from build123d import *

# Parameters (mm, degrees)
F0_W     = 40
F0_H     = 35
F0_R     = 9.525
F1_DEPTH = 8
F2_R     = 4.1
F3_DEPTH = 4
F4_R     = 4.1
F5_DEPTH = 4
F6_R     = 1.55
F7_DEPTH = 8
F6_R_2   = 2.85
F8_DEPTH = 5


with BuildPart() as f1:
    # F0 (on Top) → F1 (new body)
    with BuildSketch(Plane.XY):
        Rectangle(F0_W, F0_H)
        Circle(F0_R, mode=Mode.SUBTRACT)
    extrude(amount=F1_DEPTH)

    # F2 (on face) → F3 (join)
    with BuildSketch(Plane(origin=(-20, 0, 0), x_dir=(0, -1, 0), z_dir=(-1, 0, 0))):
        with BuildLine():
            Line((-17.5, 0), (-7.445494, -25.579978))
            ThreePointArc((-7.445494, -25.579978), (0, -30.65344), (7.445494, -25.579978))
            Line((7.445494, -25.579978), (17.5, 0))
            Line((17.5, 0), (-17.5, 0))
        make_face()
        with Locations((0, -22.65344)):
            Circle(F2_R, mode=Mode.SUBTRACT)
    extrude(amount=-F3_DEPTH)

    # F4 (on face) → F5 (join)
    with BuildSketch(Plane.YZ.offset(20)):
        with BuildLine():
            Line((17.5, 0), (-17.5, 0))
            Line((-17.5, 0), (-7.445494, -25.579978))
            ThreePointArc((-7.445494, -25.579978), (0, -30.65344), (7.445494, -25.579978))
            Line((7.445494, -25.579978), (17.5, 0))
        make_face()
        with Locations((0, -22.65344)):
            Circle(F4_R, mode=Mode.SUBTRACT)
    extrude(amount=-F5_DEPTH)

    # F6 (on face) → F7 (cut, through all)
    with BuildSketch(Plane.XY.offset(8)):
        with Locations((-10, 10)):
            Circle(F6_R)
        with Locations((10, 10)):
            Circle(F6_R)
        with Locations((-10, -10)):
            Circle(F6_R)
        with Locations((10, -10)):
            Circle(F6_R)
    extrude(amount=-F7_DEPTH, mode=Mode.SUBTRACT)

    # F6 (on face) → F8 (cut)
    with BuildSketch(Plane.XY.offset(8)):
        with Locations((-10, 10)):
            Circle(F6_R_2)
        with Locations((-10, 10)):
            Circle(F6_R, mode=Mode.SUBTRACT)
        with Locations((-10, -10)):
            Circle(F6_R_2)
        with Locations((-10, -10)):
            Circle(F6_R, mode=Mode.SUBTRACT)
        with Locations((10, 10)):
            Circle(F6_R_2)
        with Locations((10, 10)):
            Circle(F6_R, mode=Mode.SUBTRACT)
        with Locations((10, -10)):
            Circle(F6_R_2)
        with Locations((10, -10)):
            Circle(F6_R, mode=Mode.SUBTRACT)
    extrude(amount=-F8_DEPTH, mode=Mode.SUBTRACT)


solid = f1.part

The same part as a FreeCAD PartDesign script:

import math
import FreeCAD as App
import Part
import Sketcher
Q = App.Units.Quantity

doc = App.newDocument("Part")
body = doc.addObject("PartDesign::Body", "Body")

sketch1 = doc.addObject("Sketcher::SketchObject", "Sketch")
body.addObject(sketch1)
sketch1.AttachmentSupport = (doc.XY_Plane, [""])
sketch1.MapMode = "FlatFace"
sketch1.addGeometry(Part.LineSegment(App.Vector(-20, 17.5, 0), App.Vector(-20, -17.5, 0)), False)
sketch1.addGeometry(Part.LineSegment(App.Vector(-20, -17.5, 0), App.Vector(20, -17.5, 0)), False)
sketch1.addGeometry(Part.LineSegment(App.Vector(20, -17.5, 0), App.Vector(20, 17.5, 0)), False)
sketch1.addGeometry(Part.LineSegment(App.Vector(20, 17.5, 0), App.Vector(-20, 17.5, 0)), False)
sketch1.addGeometry(Part.Circle(App.Vector(0, 0, 0), App.Vector(0, 0, 1), 9.525), False)
sketch1.addConstraint(Sketcher.Constraint("Coincident", 0, 2, 1, 1))
sketch1.addConstraint(Sketcher.Constraint("Coincident", 1, 2, 2, 1))
sketch1.addConstraint(Sketcher.Constraint("Coincident", 2, 2, 3, 1))
sketch1.addConstraint(Sketcher.Constraint("Coincident", 3, 2, 0, 1))
sketch1.addConstraint(Sketcher.Constraint("Vertical", 0))
sketch1.addConstraint(Sketcher.Constraint("Horizontal", 1))
sketch1.addConstraint(Sketcher.Constraint("Vertical", 2))
sketch1.addConstraint(Sketcher.Constraint("Horizontal", 3))
sketch1.addConstraint(Sketcher.Constraint("Coincident", 4, 3, -1, 1))
sketch1.addConstraint(Sketcher.Constraint("Symmetric", 0, 2, 2, 2, -1, 1))
sketch1.addConstraint(Sketcher.Constraint("Diameter", 4, Q("19.05 mm")))
sketch1.addConstraint(Sketcher.Constraint("DistanceX", 1, 1, 1, 2, Q("40 mm")))
sketch1.addConstraint(Sketcher.Constraint("DistanceY", 0, 2, 0, 1, Q("35 mm")))
pad1 = doc.addObject("PartDesign::Pad", "Pad")
body.addObject(pad1)
pad1.Profile = sketch1
pad1.Length = 8

sketch2 = doc.addObject("Sketcher::SketchObject", "Sketch001")
body.addObject(sketch2)
sketch2.AttachmentSupport = (doc.YZ_Plane, [""])
sketch2.MapMode = "FlatFace"
sketch2.AttachmentOffset = App.Placement(App.Vector(0, 0, -20), App.Rotation())
sketch2.addGeometry(Part.LineSegment(App.Vector(17.5, 0, 0), App.Vector(7.445494, -25.579978, 0)), False)
sketch2.addGeometry(Part.ArcOfCircle(Part.Circle(App.Vector(0, -22.653439, 0), App.Vector(0, 0, 1), 8.000001), math.radians(-158.542111), math.radians(-21.457889)), False)
sketch2.addGeometry(Part.LineSegment(App.Vector(-7.445494, -25.579978, 0), App.Vector(-17.5, 0, 0)), False)
sketch2.addGeometry(Part.LineSegment(App.Vector(-17.5, 0, 0), App.Vector(17.5, 0, 0)), False)
sketch2.addGeometry(Part.Circle(App.Vector(0, -22.65344, 0), App.Vector(0, 0, 1), 4.1), False)
sketch2.addConstraint(Sketcher.Constraint("Tangent", 0, 2, 1, 2))
sketch2.addConstraint(Sketcher.Constraint("Tangent", 1, 1, 2, 1))
sketch2.addConstraint(Sketcher.Constraint("Coincident", 2, 2, 3, 1))
sketch2.addConstraint(Sketcher.Constraint("Coincident", 3, 2, 0, 1))
sketch2.addConstraint(Sketcher.Constraint("Horizontal", 3))
sketch2.addConstraint(Sketcher.Constraint("Coincident", 4, 3, 1, 3))
sketch2.addConstraint(Sketcher.Constraint("Symmetric", 2, 2, 3, 2, -1, 1))
sketch2.addConstraint(Sketcher.Constraint("PointOnObject", 1, 3, -2))
sketch2.addConstraint(Sketcher.Constraint("Radius", 1, Q("8.000001 mm")))
sketch2.addConstraint(Sketcher.Constraint("Diameter", 4, Q("8.2 mm")))
sketch2.addConstraint(Sketcher.Constraint("DistanceX", 3, 1, 3, 2, Q("35 mm")))
sketch2.addConstraint(Sketcher.Constraint("DistanceY", 1, 3, -1, 1, Q("22.653439 mm")))
pad2 = doc.addObject("PartDesign::Pad", "Pad001")
body.addObject(pad2)
pad2.Profile = sketch2
pad2.Length = 4

sketch3 = doc.addObject("Sketcher::SketchObject", "Sketch002")
body.addObject(sketch3)
sketch3.AttachmentSupport = (doc.YZ_Plane, [""])
sketch3.MapMode = "FlatFace"
sketch3.AttachmentOffset = App.Placement(App.Vector(0, 0, 20), App.Rotation())
sketch3.addGeometry(Part.LineSegment(App.Vector(17.5, 0, 0), App.Vector(-17.5, 0, 0)), False)
sketch3.addGeometry(Part.LineSegment(App.Vector(-17.5, 0, 0), App.Vector(-7.445494, -25.579978, 0)), False)
sketch3.addGeometry(Part.ArcOfCircle(Part.Circle(App.Vector(0, -22.653439, 0), App.Vector(0, 0, 1), 8.000001), math.radians(-158.542111), math.radians(-21.457889)), False)
sketch3.addGeometry(Part.LineSegment(App.Vector(7.445494, -25.579978, 0), App.Vector(17.5, 0, 0)), False)
sketch3.addGeometry(Part.Circle(App.Vector(0, -22.65344, 0), App.Vector(0, 0, 1), 4.1), False)
sketch3.addConstraint(Sketcher.Constraint("Coincident", 0, 2, 1, 1))
sketch3.addConstraint(Sketcher.Constraint("Tangent", 1, 2, 2, 1))
sketch3.addConstraint(Sketcher.Constraint("Tangent", 2, 2, 3, 1))
sketch3.addConstraint(Sketcher.Constraint("Coincident", 3, 2, 0, 1))
sketch3.addConstraint(Sketcher.Constraint("Horizontal", 0))
sketch3.addConstraint(Sketcher.Constraint("Coincident", 4, 3, 2, 3))
sketch3.addConstraint(Sketcher.Constraint("Symmetric", 0, 2, 3, 2, -1, 1))
sketch3.addConstraint(Sketcher.Constraint("PointOnObject", 2, 3, -2))
sketch3.addConstraint(Sketcher.Constraint("Radius", 2, Q("8.000001 mm")))
sketch3.addConstraint(Sketcher.Constraint("Diameter", 4, Q("8.2 mm")))
sketch3.addConstraint(Sketcher.Constraint("DistanceX", 0, 2, 0, 1, Q("35 mm")))
sketch3.addConstraint(Sketcher.Constraint("DistanceY", 2, 3, -1, 1, Q("22.653439 mm")))
pad3 = doc.addObject("PartDesign::Pad", "Pad002")
body.addObject(pad3)
pad3.Profile = sketch3
pad3.Length = 4
pad3.Reversed = True

sketch4 = doc.addObject("Sketcher::SketchObject", "Sketch003")
body.addObject(sketch4)
sketch4.AttachmentSupport = (doc.XY_Plane, [""])
sketch4.MapMode = "FlatFace"
sketch4.AttachmentOffset = App.Placement(App.Vector(0, 0, 8), App.Rotation())
sketch4.addGeometry(Part.Circle(App.Vector(-10, 10, 0), App.Vector(0, 0, 1), 1.55), False)
sketch4.addGeometry(Part.Circle(App.Vector(10, 10, 0), App.Vector(0, 0, 1), 1.55), False)
sketch4.addGeometry(Part.Circle(App.Vector(-10, -10, 0), App.Vector(0, 0, 1), 1.55), False)
sketch4.addGeometry(Part.Circle(App.Vector(10, -10, 0), App.Vector(0, 0, 1), 1.55), False)
sketch4.addConstraint(Sketcher.Constraint("Equal", 0, 1))
sketch4.addConstraint(Sketcher.Constraint("Equal", 1, 2))
sketch4.addConstraint(Sketcher.Constraint("Equal", 2, 3))
sketch4.addConstraint(Sketcher.Constraint("Symmetric", 1, 3, 2, 3, -1, 1))
sketch4.addConstraint(Sketcher.Constraint("Symmetric", 0, 3, 3, 3, -1, 1))
sketch4.addConstraint(Sketcher.Constraint("Symmetric", 0, 3, 1, 3, -2))
sketch4.addConstraint(Sketcher.Constraint("Diameter", 0, Q("3.1 mm")))
sketch4.addConstraint(Sketcher.Constraint("DistanceX", 0, 3, -1, 1, Q("10 mm")))
sketch4.addConstraint(Sketcher.Constraint("DistanceY", -1, 1, 0, 3, Q("10 mm")))
pocket1 = doc.addObject("PartDesign::Pocket", "Pocket")
body.addObject(pocket1)
pocket1.Profile = sketch4
pocket1.Type = "ThroughAll"

sketch5 = doc.addObject("Sketcher::SketchObject", "Sketch004")
body.addObject(sketch5)
sketch5.AttachmentSupport = (doc.XY_Plane, [""])
sketch5.MapMode = "FlatFace"
sketch5.AttachmentOffset = App.Placement(App.Vector(0, 0, 8), App.Rotation())
sketch5.addGeometry(Part.Circle(App.Vector(-10, 10, 0), App.Vector(0, 0, 1), 2.85), False)
sketch5.addGeometry(Part.Circle(App.Vector(-10, 10, 0), App.Vector(0, 0, 1), 1.55), False)
sketch5.addGeometry(Part.Circle(App.Vector(-10, -10, 0), App.Vector(0, 0, 1), 2.85), False)
sketch5.addGeometry(Part.Circle(App.Vector(-10, -10, 0), App.Vector(0, 0, 1), 1.55), False)
sketch5.addGeometry(Part.Circle(App.Vector(10, 10, 0), App.Vector(0, 0, 1), 2.85), False)
sketch5.addGeometry(Part.Circle(App.Vector(10, 10, 0), App.Vector(0, 0, 1), 1.55), False)
sketch5.addGeometry(Part.Circle(App.Vector(10, -10, 0), App.Vector(0, 0, 1), 2.85), False)
sketch5.addGeometry(Part.Circle(App.Vector(10, -10, 0), App.Vector(0, 0, 1), 1.55), False)
sketch5.addConstraint(Sketcher.Constraint("Coincident", 1, 3, 0, 3))
sketch5.addConstraint(Sketcher.Constraint("Coincident", 3, 3, 2, 3))
sketch5.addConstraint(Sketcher.Constraint("Coincident", 5, 3, 4, 3))
sketch5.addConstraint(Sketcher.Constraint("Coincident", 7, 3, 6, 3))
sketch5.addConstraint(Sketcher.Constraint("Equal", 0, 2))
sketch5.addConstraint(Sketcher.Constraint("Equal", 1, 3))
sketch5.addConstraint(Sketcher.Constraint("Equal", 2, 4))
sketch5.addConstraint(Sketcher.Constraint("Equal", 3, 5))
sketch5.addConstraint(Sketcher.Constraint("Equal", 4, 6))
sketch5.addConstraint(Sketcher.Constraint("Equal", 5, 7))
sketch5.addConstraint(Sketcher.Constraint("Symmetric", 2, 3, 4, 3, -1, 1))
sketch5.addConstraint(Sketcher.Constraint("Symmetric", 0, 3, 6, 3, -1, 1))
sketch5.addConstraint(Sketcher.Constraint("Symmetric", 0, 3, 4, 3, -2))
sketch5.addConstraint(Sketcher.Constraint("Diameter", 0, Q("5.7 mm")))
sketch5.addConstraint(Sketcher.Constraint("Diameter", 1, Q("3.1 mm")))
sketch5.addConstraint(Sketcher.Constraint("DistanceX", 0, 3, -1, 1, Q("10 mm")))
sketch5.addConstraint(Sketcher.Constraint("DistanceY", -1, 1, 0, 3, Q("10 mm")))
pocket2 = doc.addObject("PartDesign::Pocket", "Pocket001")
body.addObject(pocket2)
pocket2.Profile = sketch5
pocket2.Length = 5

doc.recompute()
